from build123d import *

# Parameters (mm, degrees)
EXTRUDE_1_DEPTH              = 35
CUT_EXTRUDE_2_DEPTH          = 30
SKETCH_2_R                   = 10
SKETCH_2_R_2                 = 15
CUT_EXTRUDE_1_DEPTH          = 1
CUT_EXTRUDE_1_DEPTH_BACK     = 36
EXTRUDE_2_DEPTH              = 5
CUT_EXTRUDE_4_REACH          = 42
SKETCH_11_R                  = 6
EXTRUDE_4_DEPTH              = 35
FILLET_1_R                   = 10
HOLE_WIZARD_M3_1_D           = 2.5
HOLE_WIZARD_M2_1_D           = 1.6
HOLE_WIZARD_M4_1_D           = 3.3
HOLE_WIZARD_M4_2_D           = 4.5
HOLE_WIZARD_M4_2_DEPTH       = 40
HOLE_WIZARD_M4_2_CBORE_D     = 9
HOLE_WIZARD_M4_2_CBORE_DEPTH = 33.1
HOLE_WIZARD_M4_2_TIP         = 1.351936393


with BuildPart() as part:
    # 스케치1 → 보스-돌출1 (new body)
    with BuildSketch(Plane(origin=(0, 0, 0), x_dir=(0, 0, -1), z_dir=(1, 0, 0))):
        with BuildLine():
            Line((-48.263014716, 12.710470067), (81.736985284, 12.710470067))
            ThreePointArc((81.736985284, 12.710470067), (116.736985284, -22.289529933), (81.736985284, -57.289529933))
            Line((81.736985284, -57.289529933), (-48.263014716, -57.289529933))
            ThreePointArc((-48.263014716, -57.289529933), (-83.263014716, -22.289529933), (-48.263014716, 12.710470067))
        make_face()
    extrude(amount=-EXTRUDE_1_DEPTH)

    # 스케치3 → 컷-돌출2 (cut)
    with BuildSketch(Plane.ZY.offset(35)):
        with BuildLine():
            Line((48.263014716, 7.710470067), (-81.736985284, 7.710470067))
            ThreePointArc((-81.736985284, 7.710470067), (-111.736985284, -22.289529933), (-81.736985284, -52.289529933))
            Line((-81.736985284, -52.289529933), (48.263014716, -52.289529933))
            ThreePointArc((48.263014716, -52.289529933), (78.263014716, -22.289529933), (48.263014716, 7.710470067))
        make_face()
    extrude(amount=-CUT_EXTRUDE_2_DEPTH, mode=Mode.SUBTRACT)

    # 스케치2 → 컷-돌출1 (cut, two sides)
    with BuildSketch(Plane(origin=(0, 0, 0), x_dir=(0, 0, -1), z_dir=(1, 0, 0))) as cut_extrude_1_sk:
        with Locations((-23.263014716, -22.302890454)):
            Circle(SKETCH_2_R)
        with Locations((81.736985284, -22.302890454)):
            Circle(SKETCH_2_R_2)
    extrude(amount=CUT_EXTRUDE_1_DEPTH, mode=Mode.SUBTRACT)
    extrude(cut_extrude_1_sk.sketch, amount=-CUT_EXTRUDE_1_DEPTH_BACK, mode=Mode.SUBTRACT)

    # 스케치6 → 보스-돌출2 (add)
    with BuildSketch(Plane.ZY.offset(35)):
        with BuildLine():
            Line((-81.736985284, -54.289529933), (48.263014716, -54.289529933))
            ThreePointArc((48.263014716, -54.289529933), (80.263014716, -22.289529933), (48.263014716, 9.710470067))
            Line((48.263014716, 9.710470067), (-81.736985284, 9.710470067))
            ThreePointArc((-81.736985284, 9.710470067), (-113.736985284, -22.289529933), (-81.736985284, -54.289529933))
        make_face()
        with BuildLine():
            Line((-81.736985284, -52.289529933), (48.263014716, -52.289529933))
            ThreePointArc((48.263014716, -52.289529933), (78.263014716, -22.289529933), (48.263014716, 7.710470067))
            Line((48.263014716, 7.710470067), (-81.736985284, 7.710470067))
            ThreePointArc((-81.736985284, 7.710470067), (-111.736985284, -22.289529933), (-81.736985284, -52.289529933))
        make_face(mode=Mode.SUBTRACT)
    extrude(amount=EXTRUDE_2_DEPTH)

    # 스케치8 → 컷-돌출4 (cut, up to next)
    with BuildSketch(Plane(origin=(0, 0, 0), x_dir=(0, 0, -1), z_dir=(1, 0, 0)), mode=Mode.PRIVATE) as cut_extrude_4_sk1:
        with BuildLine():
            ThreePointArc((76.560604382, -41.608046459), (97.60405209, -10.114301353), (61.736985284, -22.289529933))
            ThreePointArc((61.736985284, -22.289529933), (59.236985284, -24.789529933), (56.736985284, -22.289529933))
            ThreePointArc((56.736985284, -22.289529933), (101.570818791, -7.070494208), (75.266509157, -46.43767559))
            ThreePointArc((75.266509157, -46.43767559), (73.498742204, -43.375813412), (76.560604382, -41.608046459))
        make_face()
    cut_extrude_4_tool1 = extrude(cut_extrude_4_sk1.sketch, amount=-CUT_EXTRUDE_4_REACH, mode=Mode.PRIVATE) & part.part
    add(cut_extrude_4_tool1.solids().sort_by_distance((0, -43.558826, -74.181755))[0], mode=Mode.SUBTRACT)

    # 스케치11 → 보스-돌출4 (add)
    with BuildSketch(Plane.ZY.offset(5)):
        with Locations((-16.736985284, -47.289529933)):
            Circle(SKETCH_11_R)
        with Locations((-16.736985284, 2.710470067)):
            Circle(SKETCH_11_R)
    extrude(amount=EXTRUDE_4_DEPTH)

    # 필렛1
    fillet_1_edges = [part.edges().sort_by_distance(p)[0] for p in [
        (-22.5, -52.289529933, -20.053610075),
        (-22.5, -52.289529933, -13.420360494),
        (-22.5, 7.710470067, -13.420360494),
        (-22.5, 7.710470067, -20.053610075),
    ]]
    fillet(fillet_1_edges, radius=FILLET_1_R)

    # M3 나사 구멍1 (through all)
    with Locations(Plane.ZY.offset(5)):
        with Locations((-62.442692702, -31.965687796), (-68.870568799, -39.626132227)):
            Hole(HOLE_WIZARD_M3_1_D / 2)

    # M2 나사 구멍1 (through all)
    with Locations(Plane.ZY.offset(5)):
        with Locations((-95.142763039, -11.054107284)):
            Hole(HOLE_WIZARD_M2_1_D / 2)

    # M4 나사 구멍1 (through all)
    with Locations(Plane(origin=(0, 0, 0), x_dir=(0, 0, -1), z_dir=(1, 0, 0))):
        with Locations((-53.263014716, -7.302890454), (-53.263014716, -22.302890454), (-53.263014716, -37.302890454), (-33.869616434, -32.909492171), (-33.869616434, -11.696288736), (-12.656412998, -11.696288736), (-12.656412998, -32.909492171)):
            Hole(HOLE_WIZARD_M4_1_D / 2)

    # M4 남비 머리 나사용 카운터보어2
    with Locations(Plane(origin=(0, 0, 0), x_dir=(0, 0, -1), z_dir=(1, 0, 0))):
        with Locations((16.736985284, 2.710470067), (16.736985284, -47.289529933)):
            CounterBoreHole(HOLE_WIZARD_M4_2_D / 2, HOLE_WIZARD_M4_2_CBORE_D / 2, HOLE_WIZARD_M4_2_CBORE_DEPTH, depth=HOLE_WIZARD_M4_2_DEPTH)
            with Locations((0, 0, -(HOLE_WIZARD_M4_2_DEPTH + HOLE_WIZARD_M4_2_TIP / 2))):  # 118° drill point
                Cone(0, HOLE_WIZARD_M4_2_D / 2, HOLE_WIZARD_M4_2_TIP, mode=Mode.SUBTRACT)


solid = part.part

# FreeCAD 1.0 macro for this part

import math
import FreeCAD as App
import Part
import Sketcher
Q = App.Units.Quantity


def edges_at(feature, points):
    """Names of the edges that pass closest to the given points."""
    edges = feature.Shape.Edges
    near = lambda p: min(range(len(edges)), key=lambda i: edges[i].distToShape(Part.Vertex(*p))[0])
    return sorted({f"Edge{near(p) + 1}" for p in points})

doc = App.newDocument("Part")
params = doc.addObject("Spreadsheet::Sheet", "Params")
for row, (alias, value) in enumerate([
    ("sketch1_radius", "35 mm"),
    ("sketch1_height", "130 mm"),
    ("pad1_length", "35 mm"),
    ("sketch2_radius", "30 mm"),
    ("sketch2_height", "130 mm"),
    ("pocket1_length", "30 mm"),
    ("sketch3_diameter", "20 mm"),
    ("sketch3_diameter2", "30 mm"),
    ("sketch4_radius", "32 mm"),
    ("sketch4_radius2", "30 mm"),
    ("sketch4_height", "130 mm"),
    ("pad2_length", "5 mm"),
    ("sketch5_radius", "20 mm"),
    ("sketch5_radius2", "25 mm"),
    ("pocket3_length", "5 mm"),
    ("sketch6_diameter", "12 mm"),
    ("pad3_length", "35 mm"),
    ("fillet_radius", "10 mm"),
    ("sketch7_diameter", "2.5 mm"),
    ("hole_diameter", "2.5 mm"),
    ("sketch8_diameter", "1.6 mm"),
    ("hole2_diameter", "1.6 mm"),
    ("sketch9_diameter", "3.3 mm"),
    ("hole3_diameter", "3.3 mm"),
    ("sketch10_diameter", "4.5 mm"),
    ("hole4_diameter", "4.5 mm"),
    ("hole4_depth", "40 mm"),
    ("hole4_cbore_diameter", "9 mm"),
    ("hole4_cbore_depth", "33.1 mm"),
], start=1):
    params.set(f"A{row}", alias)
    params.set(f"B{row}", "=" + value)
    params.setAlias(f"B{row}", alias)

body = doc.addObject("PartDesign::Body", "Body")

sketch1 = body.newObject("Sketcher::SketchObject", "Sketch")
sketch1.AttachmentSupport = (doc.getObject("YZ_Plane"), [""])
sketch1.MapMode = "FlatFace"
sketch1.addGeometry([
    Part.LineSegment(App.Vector(12.71047, -81.736985, 0), App.Vector(12.71047, 48.263015, 0)),
    Part.ArcOfCircle(Part.Circle(App.Vector(-22.28953, 48.263015, 0), App.Vector(0, 0, 1), 35), math.radians(0), math.radians(180)),
    Part.LineSegment(App.Vector(-57.28953, 48.263015, 0), App.Vector(-57.28953, -81.736985, 0)),
    Part.ArcOfCircle(Part.Circle(App.Vector(-22.28953, -81.736985, 0), App.Vector(0, 0, 1), 35), math.radians(180), math.radians(360)),
], False)
sketch1.addConstraint([
    Sketcher.Constraint("Tangent", 0, 2, 1, 1),
    Sketcher.Constraint("Tangent", 1, 2, 2, 1),
    Sketcher.Constraint("Tangent", 2, 2, 3, 1),
    Sketcher.Constraint("Tangent", 3, 2, 0, 1),
    Sketcher.Constraint("Vertical", 0),
    Sketcher.Constraint("Vertical", 2),
    Sketcher.Constraint("Radius", 1, Q("35 mm")),
    Sketcher.Constraint("DistanceY", 0, 1, 0, 2, Q("130 mm")),
    Sketcher.Constraint("DistanceX", 1, 3, -1, 1, Q("22.28953 mm")),
    Sketcher.Constraint("DistanceY", -1, 1, 1, 3, Q("48.263015 mm")),
])
sketch1.setExpression("Constraints[6]", "Params.sketch1_radius")
sketch1.setExpression("Constraints[7]", "Params.sketch1_height")
pad1 = body.newObject("PartDesign::Pad", "Pad")
pad1.Profile = sketch1
pad1.setExpression("Length", "Params.pad1_length")
pad1.Reversed = True

sketch2 = body.newObject("Sketcher::SketchObject", "Sketch001")
sketch2.AttachmentSupport = (doc.getObject("YZ_Plane"), [""])
sketch2.MapMode = "FlatFace"
sketch2.AttachmentOffset = App.Placement(App.Vector(0, 0, -35), App.Rotation())
sketch2.addGeometry([
    Part.LineSegment(App.Vector(7.71047, 48.263015, 0), App.Vector(7.71047, -81.736985, 0)),
    Part.ArcOfCircle(Part.Circle(App.Vector(-22.28953, -81.736985, 0), App.Vector(0, 0, 1), 30), math.radians(180), math.radians(360)),
    Part.LineSegment(App.Vector(-52.28953, -81.736985, 0), App.Vector(-52.28953, 48.263015, 0)),
    Part.ArcOfCircle(Part.Circle(App.Vector(-22.28953, 48.263015, 0), App.Vector(0, 0, 1), 30), math.radians(0), math.radians(180)),
], False)
sketch2.addConstraint([
    Sketcher.Constraint("Tangent", 0, 2, 1, 2),
    Sketcher.Constraint("Tangent", 1, 1, 2, 1),
    Sketcher.Constraint("Tangent", 2, 2, 3, 2),
    Sketcher.Constraint("Tangent", 3, 1, 0, 1),
    Sketcher.Constraint("Vertical", 0),
    Sketcher.Constraint("Vertical", 2),
    Sketcher.Constraint("Radius", 1, Q("30 mm")),
    Sketcher.Constraint("DistanceY", 0, 2, 0, 1, Q("130 mm")),
    Sketcher.Constraint("DistanceX", 1, 3, -1, 1, Q("22.28953 mm")),
    Sketcher.Constraint("DistanceY", 1, 3, -1, 1, Q("81.736985 mm")),
])
sketch2.setExpression("Constraints[6]", "Params.sketch2_radius")
sketch2.setExpression("Constraints[7]", "Params.sketch2_height")
pocket1 = body.newObject("PartDesign::Pocket", "Pocket")
pocket1.Profile = sketch2
pocket1.setExpression("Length", "Params.pocket1_length")
pocket1.Reversed = True

sketch3 = body.newObject("Sketcher::SketchObject", "Sketch002")
sketch3.AttachmentSupport = (doc.getObject("YZ_Plane"), [""])
sketch3.MapMode = "FlatFace"
sketch3.addGeometry([
    Part.Circle(App.Vector(-22.30289, 23.263015, 0), App.Vector(0, 0, 1), 10),
    Part.Circle(App.Vector(-22.30289, -81.736985, 0), App.Vector(0, 0, 1), 15),
], False)
sketch3.addConstraint([
    Sketcher.Constraint("Vertical", 0, 3, 1, 3),
    Sketcher.Constraint("Diameter", 0, Q("20 mm")),
    Sketcher.Constraint("Diameter", 1, Q("30 mm")),
    Sketcher.Constraint("DistanceY", 1, 3, 0, 3, Q("105 mm")),
    Sketcher.Constraint("DistanceX", 0, 3, -1, 1, Q("22.30289 mm")),
    Sketcher.Constraint("DistanceY", -1, 1, 0, 3, Q("23.263015 mm")),
])
sketch3.setExpression("Constraints[1]", "Params.sketch3_diameter")
sketch3.setExpression("Constraints[2]", "Params.sketch3_diameter2")
pocket2 = body.newObject("PartDesign::Pocket", "Pocket001")
pocket2.Profile = sketch3
pocket2.Type = "ThroughAll"
pocket2.Midplane = True

sketch4 = body.newObject("Sketcher::SketchObject", "Sketch003")
sketch4.AttachmentSupport = (doc.getObject("YZ_Plane"), [""])
sketch4.MapMode = "FlatFace"
sketch4.AttachmentOffset = App.Placement(App.Vector(0, 0, -35), App.Rotation())
sketch4.addGeometry([
    Part.LineSegment(App.Vector(-54.28953, -81.736985, 0), App.Vector(-54.28953, 48.263015, 0)),
    Part.ArcOfCircle(Part.Circle(App.Vector(-22.28953, 48.263015, 0), App.Vector(0, 0, 1), 32), math.radians(0), math.radians(180)),
    Part.LineSegment(App.Vector(9.71047, 48.263015, 0), App.Vector(9.71047, -81.736985, 0)),
    Part.ArcOfCircle(Part.Circle(App.Vector(-22.28953, -81.736985, 0), App.Vector(0, 0, 1), 32), math.radians(180), math.radians(360)),
    Part.LineSegment(App.Vector(-52.28953, 48.263015, 0), App.Vector(-52.28953, -81.736985, 0)),
    Part.ArcOfCircle(Part.Circle(App.Vector(-22.28953, -81.736985, 0), App.Vector(0, 0, 1), 30), math.radians(180), math.radians(360)),
    Part.LineSegment(App.Vector(7.71047, -81.736985, 0), App.Vector(7.71047, 48.263015, 0)),
    Part.ArcOfCircle(Part.Circle(App.Vector(-22.28953, 48.263015, 0), App.Vector(0, 0, 1), 30), math.radians(0), math.radians(180)),
], False)
sketch4.addConstraint([
    Sketcher.Constraint("Tangent", 0, 2, 1, 2),
    Sketcher.Constraint("Tangent", 1, 1, 2, 1),
    Sketcher.Constraint("Tangent", 2, 2, 3, 2),
    Sketcher.Constraint("Tangent", 3, 1, 0, 1),
    Sketcher.Constraint("Tangent", 4, 2, 5, 1),
    Sketcher.Constraint("Tangent", 5, 2, 6, 1),
    Sketcher.Constraint("Tangent", 6, 2, 7, 1),
    Sketcher.Constraint("Tangent", 7, 2, 4, 1),
    Sketcher.Constraint("Vertical", 0),
    Sketcher.Constraint("Vertical", 2),
    Sketcher.Constraint("Vertical", 4),
    Sketcher.Constraint("Vertical", 6),
    Sketcher.Constraint("Coincident", 5, 3, 3, 3),
    Sketcher.Constraint("Horizontal", 7, 3, 0, 2),
    Sketcher.Constraint("Radius", 1, Q("32 mm")),
    Sketcher.Constraint("Radius", 5, Q("30 mm")),
    Sketcher.Constraint("DistanceY", 0, 1, 0, 2, Q("130 mm")),
    Sketcher.Constraint("DistanceX", 1, 3, -1, 1, Q("22.28953 mm")),
    Sketcher.Constraint("DistanceY", -1, 1, 1, 3, Q("48.263015 mm")),
])
sketch4.setExpression("Constraints[14]", "Params.sketch4_radius")
sketch4.setExpression("Constraints[15]", "Params.sketch4_radius2")
sketch4.setExpression("Constraints[16]", "Params.sketch4_height")
pad2 = body.newObject("PartDesign::Pad", "Pad001")
pad2.Profile = sketch4
pad2.setExpression("Length", "Params.pad2_length")
pad2.Reversed = True

sketch5 = body.newObject("Sketcher::SketchObject", "Sketch004")
sketch5.AttachmentSupport = (doc.getObject("YZ_Plane"), [""])
sketch5.MapMode = "FlatFace"
sketch5.addGeometry([
    Part.ArcOfCircle(Part.Circle(App.Vector(-22.28953, -81.736985, 0), App.Vector(0, 0, 1), 20), math.radians(165), math.radians(450)),
    Part.ArcOfCircle(Part.Circle(App.Vector(-44.022861, -75.913557, 0), App.Vector(0, 0, 1), 2.5), math.radians(-15), math.radians(165)),
    Part.ArcOfCircle(Part.Circle(App.Vector(-22.28953, -81.736985, 0), App.Vector(0, 0, 1), 25), math.radians(165), math.radians(450)),
    Part.ArcOfCircle(Part.Circle(App.Vector(-22.28953, -59.236985, 0), App.Vector(0, 0, 1), 2.5), math.radians(90), math.radians(270)),
], False)
sketch5.addConstraint([
    Sketcher.Constraint("Tangent", 0, 1, 1, 1),
    Sketcher.Constraint("Tangent", 1, 2, 2, 1),
    Sketcher.Constraint("Tangent", 2, 2, 3, 1),
    Sketcher.Constraint("Tangent", 3, 2, 0, 2),
    Sketcher.Constraint("Coincident", 2, 3, 0, 3),
    Sketcher.Constraint("Vertical", 2, 3, 3, 3),
    Sketcher.Constraint("Radius", 0, Q("20 mm")),
    Sketcher.Constraint("Radius", 2, Q("25 mm")),
    Sketcher.Constraint("DistanceX", 0, 3, -1, 1, Q("22.28953 mm")),
    Sketcher.Constraint("DistanceX", 1, 3, -1, 1, Q("44.022861 mm")),
    Sketcher.Constraint("DistanceY", 1, 2, -1, 1, Q("75.266509 mm")),
])
sketch5.setExpression("Constraints[6]", "Params.sketch5_radius")
sketch5.setExpression("Constraints[7]", "Params.sketch5_radius2")
pocket3 = body.newObject("PartDesign::Pocket", "Pocket002")
pocket3.Profile = sketch5
pocket3.setExpression("Length", "Params.pocket3_length")

sketch6 = body.newObject("Sketcher::SketchObject", "Sketch005")
sketch6.AttachmentSupport = (doc.getObject("YZ_Plane"), [""])
sketch6.MapMode = "FlatFace"
sketch6.AttachmentOffset = App.Placement(App.Vector(0, 0, -5), App.Rotation())
sketch6.addGeometry([
    Part.Circle(App.Vector(-47.28953, -16.736985, 0), App.Vector(0, 0, 1), 6),
    Part.Circle(App.Vector(2.71047, -16.736985, 0), App.Vector(0, 0, 1), 6),
], False)
sketch6.addConstraint([
    Sketcher.Constraint("Equal", 0, 1),
    Sketcher.Constraint("Horizontal", 0, 3, 1, 3),
    Sketcher.Constraint("Diameter", 0, Q("12 mm")),
    Sketcher.Constraint("DistanceX", 0, 3, 1, 3, Q("50 mm")),
    Sketcher.Constraint("DistanceX", 0, 3, -1, 1, Q("47.28953 mm")),
    Sketcher.Constraint("DistanceY", 0, 3, -1, 1, Q("16.736985 mm")),
])
sketch6.setExpression("Constraints[2]", "Params.sketch6_diameter")
pad3 = body.newObject("PartDesign::Pad", "Pad002")
pad3.Profile = sketch6
pad3.setExpression("Length", "Params.pad3_length")
pad3.Reversed = True
doc.recompute()

fillet = body.newObject("PartDesign::Fillet", "Fillet")
fillet.Base = (pad3, edges_at(pad3, [
    (-22.5, -52.29, -20.054),
    (-22.5, -52.29, -13.42),
    (-22.5, 7.71, -13.42),
    (-22.5, 7.71, -20.054),
]))
fillet.setExpression("Radius", "Params.fillet_radius")

sketch7 = body.newObject("Sketcher::SketchObject", "Sketch006")
sketch7.AttachmentSupport = (doc.getObject("YZ_Plane"), [""])
sketch7.MapMode = "FlatFace"
sketch7.AttachmentOffset = App.Placement(App.Vector(0, 0, -5), App.Rotation())
sketch7.addGeometry([
    Part.Circle(App.Vector(-31.965688, -62.442693, 0), App.Vector(0, 0, 1), 1.25),
    Part.Circle(App.Vector(-39.626132, -68.870569, 0), App.Vector(0, 0, 1), 1.25),
], False)
sketch7.addConstraint([
    Sketcher.Constraint("Equal", 0, 1),
    Sketcher.Constraint("Diameter", 0, Q("2.5 mm")),
    Sketcher.Constraint("DistanceY", 1, 3, -1, 1, Q("68.870569 mm")),
    Sketcher.Constraint("DistanceX", 0, 3, -1, 1, Q("31.965688 mm")),
    Sketcher.Constraint("DistanceY", 0, 3, -1, 1, Q("62.442693 mm")),
    Sketcher.Constraint("DistanceX", 1, 3, -1, 1, Q("39.626132 mm")),
])
sketch7.setExpression("Constraints[1]", "Params.sketch7_diameter")
doc.recompute()
hole = body.newObject("PartDesign::Hole", "Hole")
hole.Profile = sketch7
hole.ThreadType = "None"
hole.setExpression("Diameter", "Params.hole_diameter")
hole.DepthType = "ThroughAll"
hole.Reversed = True

sketch8 = body.newObject("Sketcher::SketchObject", "Sketch007")
sketch8.AttachmentSupport = (doc.getObject("YZ_Plane"), [""])
sketch8.MapMode = "FlatFace"
sketch8.AttachmentOffset = App.Placement(App.Vector(0, 0, -5), App.Rotation())
sketch8.addGeometry(Part.Circle(App.Vector(-11.054107, -95.142763, 0), App.Vector(0, 0, 1), 0.8), False)
sketch8.addConstraint([
    Sketcher.Constraint("Diameter", 0, Q("1.6 mm")),
    Sketcher.Constraint("DistanceX", 0, 3, -1, 1, Q("11.054107 mm")),
    Sketcher.Constraint("DistanceY", 0, 3, -1, 1, Q("95.142763 mm")),
])
sketch8.setExpression("Constraints[0]", "Params.sketch8_diameter")
doc.recompute()
hole2 = body.newObject("PartDesign::Hole", "Hole001")
hole2.Profile = sketch8
hole2.ThreadType = "None"
hole2.setExpression("Diameter", "Params.hole2_diameter")
hole2.DepthType = "ThroughAll"
hole2.Reversed = True

sketch9 = body.newObject("Sketcher::SketchObject", "Sketch008")
sketch9.AttachmentSupport = (doc.getObject("YZ_Plane"), [""])
sketch9.MapMode = "FlatFace"
sketch9.addGeometry([
    Part.Circle(App.Vector(-7.30289, 53.263015, 0), App.Vector(0, 0, 1), 1.65),
    Part.Circle(App.Vector(-22.30289, 53.263015, 0), App.Vector(0, 0, 1), 1.65),
    Part.Circle(App.Vector(-37.30289, 53.263015, 0), App.Vector(0, 0, 1), 1.65),
    Part.Circle(App.Vector(-32.909492, 33.869616, 0), App.Vector(0, 0, 1), 1.65),
    Part.Circle(App.Vector(-11.696289, 33.869616, 0), App.Vector(0, 0, 1), 1.65),
    Part.Circle(App.Vector(-11.696289, 12.656413, 0), App.Vector(0, 0, 1), 1.65),
    Part.Circle(App.Vector(-32.909492, 12.656413, 0), App.Vector(0, 0, 1), 1.65),
], False)
sketch9.addConstraint([
    Sketcher.Constraint("Equal", 0, 1),
    Sketcher.Constraint("Equal", 1, 2),
    Sketcher.Constraint("Equal", 2, 3),
    Sketcher.Constraint("Equal", 3, 4),
    Sketcher.Constraint("Equal", 4, 5),
    Sketcher.Constraint("Equal", 5, 6),
    Sketcher.Constraint("Horizontal", 0, 3, 1, 3),
    Sketcher.Constraint("Horizontal", 1, 3, 2, 3),
    Sketcher.Constraint("Horizontal", 3, 3, 4, 3),
    Sketcher.Constraint("Horizontal", 5, 3, 6, 3),
    Sketcher.Constraint("Vertical", 4, 3, 5, 3),
    Sketcher.Constraint("Vertical", 3, 3, 6, 3),
    Sketcher.Constraint("Diameter", 0, Q("3.3 mm")),
    Sketcher.Constraint("DistanceX", 1, 3, 0, 3, Q("15 mm")),
    Sketcher.Constraint("DistanceX", 2, 3, 1, 3, Q("15 mm")),
    Sketcher.Constraint("DistanceX", 2, 3, 3, 3, Q("4.393398 mm")),
    Sketcher.Constraint("DistanceY", 3, 3, 2, 3, Q("19.393398 mm")),
    Sketcher.Constraint("DistanceX", 4, 3, 0, 3, Q("4.393398 mm")),
    Sketcher.Constraint("DistanceY", 5, 3, 0, 3, Q("40.606602 mm")),
    Sketcher.Constraint("DistanceX", 0, 3, -1, 1, Q("7.30289 mm")),
    Sketcher.Constraint("DistanceY", -1, 1, 0, 3, Q("53.263015 mm")),
])
sketch9.setExpression("Constraints[12]", "Params.sketch9_diameter")
doc.recompute()
hole3 = body.newObject("PartDesign::Hole", "Hole002")
hole3.Profile = sketch9
hole3.ThreadType = "None"
hole3.setExpression("Diameter", "Params.hole3_diameter")
hole3.DepthType = "ThroughAll"

sketch10 = body.newObject("Sketcher::SketchObject", "Sketch009")
sketch10.AttachmentSupport = (doc.getObject("YZ_Plane"), [""])
sketch10.MapMode = "FlatFace"
sketch10.addGeometry([
    Part.Circle(App.Vector(2.71047, -16.736985, 0), App.Vector(0, 0, 1), 2.25),
    Part.Circle(App.Vector(-47.28953, -16.736985, 0), App.Vector(0, 0, 1), 2.25),
], False)
sketch10.addConstraint([
    Sketcher.Constraint("Equal", 0, 1),
    Sketcher.Constraint("Horizontal", 0, 3, 1, 3),
    Sketcher.Constraint("Diameter", 0, Q("4.5 mm")),
    Sketcher.Constraint("DistanceX", 1, 3, 0, 3, Q("50 mm")),
    Sketcher.Constraint("DistanceX", -1, 1, 0, 3, Q("2.71047 mm")),
    Sketcher.Constraint("DistanceY", 0, 3, -1, 1, Q("16.736985 mm")),
])
sketch10.setExpression("Constraints[2]", "Params.sketch10_diameter")
doc.recompute()
hole4 = body.newObject("PartDesign::Hole", "Hole003")
hole4.Profile = sketch10
hole4.ThreadType = "None"
hole4.setExpression("Diameter", "Params.hole4_diameter")
hole4.DepthType = "Dimension"
hole4.setExpression("Depth", "Params.hole4_depth")
hole4.DrillPoint = "Angled"
hole4.DrillPointAngle = 118
hole4.HoleCutType = "Counterbore"
hole4.setExpression("HoleCutDiameter", "Params.hole4_cbore_diameter")
hole4.setExpression("HoleCutDepth", "Params.hole4_cbore_depth")

doc.recompute()
